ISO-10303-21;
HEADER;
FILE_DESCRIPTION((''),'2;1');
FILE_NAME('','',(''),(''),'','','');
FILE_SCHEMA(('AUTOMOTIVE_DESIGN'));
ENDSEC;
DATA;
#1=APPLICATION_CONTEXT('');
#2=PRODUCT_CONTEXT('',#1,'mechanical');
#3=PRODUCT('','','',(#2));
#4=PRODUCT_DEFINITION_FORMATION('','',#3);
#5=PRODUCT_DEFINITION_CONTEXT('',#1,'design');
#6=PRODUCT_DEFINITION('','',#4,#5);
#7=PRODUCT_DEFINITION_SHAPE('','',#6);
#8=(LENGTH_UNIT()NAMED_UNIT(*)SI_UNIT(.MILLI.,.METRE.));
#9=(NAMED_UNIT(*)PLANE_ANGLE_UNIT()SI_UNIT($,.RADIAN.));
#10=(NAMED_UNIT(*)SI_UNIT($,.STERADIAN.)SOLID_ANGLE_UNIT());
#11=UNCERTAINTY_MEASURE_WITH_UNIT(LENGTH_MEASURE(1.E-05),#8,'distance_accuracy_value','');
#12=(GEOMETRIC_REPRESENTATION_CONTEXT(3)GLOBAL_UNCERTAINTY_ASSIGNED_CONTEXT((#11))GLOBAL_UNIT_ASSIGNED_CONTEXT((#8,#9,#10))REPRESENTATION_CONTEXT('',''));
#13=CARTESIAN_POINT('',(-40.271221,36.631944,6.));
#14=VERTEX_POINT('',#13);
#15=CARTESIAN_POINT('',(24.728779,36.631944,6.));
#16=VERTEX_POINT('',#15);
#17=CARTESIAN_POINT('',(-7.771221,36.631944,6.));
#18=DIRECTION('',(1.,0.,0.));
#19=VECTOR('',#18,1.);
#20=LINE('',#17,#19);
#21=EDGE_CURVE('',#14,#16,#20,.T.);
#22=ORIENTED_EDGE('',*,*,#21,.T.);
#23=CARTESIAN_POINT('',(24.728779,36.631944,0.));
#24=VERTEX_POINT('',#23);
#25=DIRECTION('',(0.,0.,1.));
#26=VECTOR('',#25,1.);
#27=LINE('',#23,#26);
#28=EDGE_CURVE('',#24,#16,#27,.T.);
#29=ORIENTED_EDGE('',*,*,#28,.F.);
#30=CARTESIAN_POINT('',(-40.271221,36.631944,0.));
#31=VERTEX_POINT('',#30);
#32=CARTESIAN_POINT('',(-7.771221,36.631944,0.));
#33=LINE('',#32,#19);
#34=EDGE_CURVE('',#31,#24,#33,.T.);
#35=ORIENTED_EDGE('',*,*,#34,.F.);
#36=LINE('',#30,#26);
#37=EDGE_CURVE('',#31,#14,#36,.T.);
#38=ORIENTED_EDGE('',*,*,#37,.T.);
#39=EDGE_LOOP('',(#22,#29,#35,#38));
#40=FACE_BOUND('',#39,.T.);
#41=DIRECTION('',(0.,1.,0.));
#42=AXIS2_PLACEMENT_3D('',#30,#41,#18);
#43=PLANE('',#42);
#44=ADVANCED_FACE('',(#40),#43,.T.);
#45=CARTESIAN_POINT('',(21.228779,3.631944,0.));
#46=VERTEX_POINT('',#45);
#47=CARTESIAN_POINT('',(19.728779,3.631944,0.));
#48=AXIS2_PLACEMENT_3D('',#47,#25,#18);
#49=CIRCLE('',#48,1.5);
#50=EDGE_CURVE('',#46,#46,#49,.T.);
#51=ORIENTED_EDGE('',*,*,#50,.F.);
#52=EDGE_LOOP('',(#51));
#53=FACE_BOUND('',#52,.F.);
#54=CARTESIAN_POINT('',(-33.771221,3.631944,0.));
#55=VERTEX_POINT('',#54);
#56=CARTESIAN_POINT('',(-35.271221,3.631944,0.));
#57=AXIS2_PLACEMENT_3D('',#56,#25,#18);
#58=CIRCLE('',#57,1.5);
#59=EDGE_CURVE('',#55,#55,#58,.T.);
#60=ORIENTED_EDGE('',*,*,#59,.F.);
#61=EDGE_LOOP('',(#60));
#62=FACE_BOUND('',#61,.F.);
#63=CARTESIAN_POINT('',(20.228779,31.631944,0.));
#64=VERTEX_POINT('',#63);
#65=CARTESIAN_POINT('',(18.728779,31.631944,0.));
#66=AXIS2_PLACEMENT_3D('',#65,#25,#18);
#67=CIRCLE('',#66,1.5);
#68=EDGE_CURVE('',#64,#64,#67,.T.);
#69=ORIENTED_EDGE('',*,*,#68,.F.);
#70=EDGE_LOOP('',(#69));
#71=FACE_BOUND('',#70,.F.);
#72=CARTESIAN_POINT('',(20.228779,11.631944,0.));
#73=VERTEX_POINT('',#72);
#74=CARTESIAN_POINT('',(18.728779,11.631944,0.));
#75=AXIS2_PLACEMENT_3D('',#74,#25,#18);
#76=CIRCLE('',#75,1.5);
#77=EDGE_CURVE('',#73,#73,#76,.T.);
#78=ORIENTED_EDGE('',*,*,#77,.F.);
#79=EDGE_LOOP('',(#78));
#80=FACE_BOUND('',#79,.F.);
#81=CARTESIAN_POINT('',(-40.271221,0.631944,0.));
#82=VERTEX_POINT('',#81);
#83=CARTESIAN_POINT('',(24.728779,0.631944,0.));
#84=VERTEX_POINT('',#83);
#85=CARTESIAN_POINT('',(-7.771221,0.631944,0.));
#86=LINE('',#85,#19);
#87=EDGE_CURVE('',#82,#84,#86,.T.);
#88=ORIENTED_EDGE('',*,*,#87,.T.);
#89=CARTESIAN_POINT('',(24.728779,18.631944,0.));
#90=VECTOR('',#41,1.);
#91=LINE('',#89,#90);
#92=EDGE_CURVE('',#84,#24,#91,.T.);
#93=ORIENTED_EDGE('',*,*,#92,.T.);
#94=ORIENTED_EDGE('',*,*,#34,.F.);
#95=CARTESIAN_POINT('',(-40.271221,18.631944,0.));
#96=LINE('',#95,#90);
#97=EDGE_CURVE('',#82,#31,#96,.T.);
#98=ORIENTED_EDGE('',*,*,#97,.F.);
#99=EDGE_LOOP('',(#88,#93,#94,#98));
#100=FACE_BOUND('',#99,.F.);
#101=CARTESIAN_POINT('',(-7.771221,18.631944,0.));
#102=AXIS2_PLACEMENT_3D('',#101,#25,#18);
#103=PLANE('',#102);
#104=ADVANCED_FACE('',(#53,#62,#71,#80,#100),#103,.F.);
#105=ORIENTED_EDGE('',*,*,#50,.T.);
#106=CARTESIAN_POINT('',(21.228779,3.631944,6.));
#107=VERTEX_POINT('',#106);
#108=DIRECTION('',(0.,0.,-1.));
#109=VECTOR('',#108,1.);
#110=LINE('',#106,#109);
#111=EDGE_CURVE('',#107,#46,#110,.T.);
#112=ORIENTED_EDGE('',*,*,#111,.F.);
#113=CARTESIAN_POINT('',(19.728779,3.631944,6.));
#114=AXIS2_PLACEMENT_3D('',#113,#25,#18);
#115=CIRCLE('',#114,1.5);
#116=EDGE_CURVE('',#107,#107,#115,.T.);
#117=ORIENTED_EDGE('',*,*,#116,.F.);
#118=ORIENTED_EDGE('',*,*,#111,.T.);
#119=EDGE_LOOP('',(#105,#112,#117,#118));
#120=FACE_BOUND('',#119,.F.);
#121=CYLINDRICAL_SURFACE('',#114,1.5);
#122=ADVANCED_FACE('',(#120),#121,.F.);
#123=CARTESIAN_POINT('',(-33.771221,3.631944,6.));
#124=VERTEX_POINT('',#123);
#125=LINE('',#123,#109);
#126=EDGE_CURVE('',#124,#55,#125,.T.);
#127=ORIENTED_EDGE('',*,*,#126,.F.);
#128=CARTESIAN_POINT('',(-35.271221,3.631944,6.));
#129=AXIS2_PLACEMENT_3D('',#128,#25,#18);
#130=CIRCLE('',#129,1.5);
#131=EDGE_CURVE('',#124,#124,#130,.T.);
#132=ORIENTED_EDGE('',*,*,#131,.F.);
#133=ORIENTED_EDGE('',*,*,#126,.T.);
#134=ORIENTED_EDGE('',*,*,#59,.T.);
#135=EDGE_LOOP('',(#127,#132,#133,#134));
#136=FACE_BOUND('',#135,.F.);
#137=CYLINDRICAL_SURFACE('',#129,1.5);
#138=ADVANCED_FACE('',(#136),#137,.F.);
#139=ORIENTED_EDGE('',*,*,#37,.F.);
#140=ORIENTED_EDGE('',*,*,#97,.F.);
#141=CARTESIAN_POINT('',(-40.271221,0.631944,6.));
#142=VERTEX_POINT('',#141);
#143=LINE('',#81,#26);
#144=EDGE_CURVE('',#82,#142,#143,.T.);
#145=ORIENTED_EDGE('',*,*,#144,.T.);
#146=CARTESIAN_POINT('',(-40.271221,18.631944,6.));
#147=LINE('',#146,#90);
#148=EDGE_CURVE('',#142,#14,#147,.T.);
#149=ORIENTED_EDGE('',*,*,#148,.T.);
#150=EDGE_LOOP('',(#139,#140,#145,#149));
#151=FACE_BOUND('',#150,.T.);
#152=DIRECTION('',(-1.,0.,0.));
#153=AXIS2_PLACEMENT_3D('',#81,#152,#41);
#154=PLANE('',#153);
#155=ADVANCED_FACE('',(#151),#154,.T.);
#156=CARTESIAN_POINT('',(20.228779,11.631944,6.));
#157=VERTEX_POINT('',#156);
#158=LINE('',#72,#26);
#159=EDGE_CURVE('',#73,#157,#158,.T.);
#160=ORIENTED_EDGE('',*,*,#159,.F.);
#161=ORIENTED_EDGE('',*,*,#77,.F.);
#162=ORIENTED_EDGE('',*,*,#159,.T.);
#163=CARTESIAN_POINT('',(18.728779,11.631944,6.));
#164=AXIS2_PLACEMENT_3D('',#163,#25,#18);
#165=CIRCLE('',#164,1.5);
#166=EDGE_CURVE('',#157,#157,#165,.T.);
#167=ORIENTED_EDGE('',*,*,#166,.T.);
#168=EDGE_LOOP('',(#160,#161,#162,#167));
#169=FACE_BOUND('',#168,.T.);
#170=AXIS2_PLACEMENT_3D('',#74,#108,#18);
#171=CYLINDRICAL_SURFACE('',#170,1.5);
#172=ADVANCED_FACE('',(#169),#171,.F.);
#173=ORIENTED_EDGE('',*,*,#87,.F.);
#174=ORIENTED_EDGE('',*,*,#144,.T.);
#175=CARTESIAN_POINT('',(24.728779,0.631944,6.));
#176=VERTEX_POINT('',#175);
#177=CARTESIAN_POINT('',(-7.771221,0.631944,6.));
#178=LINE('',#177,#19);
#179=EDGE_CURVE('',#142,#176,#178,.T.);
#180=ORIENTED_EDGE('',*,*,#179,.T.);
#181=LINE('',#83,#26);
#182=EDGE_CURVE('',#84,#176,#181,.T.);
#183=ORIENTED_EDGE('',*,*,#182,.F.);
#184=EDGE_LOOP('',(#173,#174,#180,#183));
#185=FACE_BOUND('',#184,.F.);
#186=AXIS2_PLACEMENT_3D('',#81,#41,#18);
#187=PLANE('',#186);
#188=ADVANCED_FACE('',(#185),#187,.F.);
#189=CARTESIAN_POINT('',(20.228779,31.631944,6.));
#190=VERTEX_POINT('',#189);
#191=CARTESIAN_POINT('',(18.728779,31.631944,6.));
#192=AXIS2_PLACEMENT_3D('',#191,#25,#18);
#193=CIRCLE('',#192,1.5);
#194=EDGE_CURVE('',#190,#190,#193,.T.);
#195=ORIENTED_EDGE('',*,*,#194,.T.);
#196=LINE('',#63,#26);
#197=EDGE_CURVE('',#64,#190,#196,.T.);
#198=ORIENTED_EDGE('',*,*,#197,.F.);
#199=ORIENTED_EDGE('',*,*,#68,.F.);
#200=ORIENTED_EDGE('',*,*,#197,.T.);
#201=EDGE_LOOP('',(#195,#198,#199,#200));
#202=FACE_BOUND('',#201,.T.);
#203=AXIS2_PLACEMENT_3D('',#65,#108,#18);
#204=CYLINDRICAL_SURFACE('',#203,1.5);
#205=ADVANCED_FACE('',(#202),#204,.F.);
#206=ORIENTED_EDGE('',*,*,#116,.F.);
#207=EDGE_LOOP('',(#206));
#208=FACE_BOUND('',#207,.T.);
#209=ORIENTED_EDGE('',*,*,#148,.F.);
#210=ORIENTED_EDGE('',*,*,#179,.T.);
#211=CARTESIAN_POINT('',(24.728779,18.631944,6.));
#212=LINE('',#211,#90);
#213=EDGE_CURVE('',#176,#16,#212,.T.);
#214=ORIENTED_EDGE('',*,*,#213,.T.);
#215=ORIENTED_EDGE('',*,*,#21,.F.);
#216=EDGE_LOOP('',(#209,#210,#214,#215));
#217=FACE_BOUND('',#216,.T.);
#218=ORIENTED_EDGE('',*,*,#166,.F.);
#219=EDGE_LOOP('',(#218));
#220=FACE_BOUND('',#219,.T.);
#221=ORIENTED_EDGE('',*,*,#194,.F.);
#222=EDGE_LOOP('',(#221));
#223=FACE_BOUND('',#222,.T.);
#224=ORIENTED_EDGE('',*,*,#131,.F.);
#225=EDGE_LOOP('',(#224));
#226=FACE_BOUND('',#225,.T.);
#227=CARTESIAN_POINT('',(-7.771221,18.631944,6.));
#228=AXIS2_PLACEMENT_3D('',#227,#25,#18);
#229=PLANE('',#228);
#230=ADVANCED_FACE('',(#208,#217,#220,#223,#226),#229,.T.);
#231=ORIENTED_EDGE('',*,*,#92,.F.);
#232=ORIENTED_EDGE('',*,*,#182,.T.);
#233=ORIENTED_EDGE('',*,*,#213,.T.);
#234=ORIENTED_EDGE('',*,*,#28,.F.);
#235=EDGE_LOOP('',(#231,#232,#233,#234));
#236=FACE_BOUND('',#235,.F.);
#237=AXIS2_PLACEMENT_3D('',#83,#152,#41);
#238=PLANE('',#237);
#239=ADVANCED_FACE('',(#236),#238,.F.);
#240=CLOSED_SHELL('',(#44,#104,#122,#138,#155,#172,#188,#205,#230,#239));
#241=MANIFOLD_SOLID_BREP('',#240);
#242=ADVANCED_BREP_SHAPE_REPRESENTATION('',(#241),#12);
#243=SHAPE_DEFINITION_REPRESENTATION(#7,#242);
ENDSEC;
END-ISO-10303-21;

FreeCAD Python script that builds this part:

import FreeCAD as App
import Part
import Sketcher

V = App.Vector
Q = App.Units.Quantity


def add_polygon(sketch, points):
    """Adds a closed chain of lines whose ends are joined by coincident constraints."""
    first, n = sketch.GeometryCount, len(points)
    for a, b in zip(points, points[1:] + points[:1]):
        sketch.addGeometry(Part.LineSegment(App.Vector(*a, 0), App.Vector(*b, 0)), False)
    for i in range(n):
        sketch.addConstraint(Sketcher.Constraint("Coincident", first + i, 2, first + (i + 1) % n, 1))

doc = App.newDocument("Part")
body = doc.addObject("PartDesign::Body", "Body")

sketch1 = doc.addObject("Sketcher::SketchObject", "Sketch")
body.addObject(sketch1)
sketch1.AttachmentSupport = (doc.XY_Plane, [""])
sketch1.MapMode = "FlatFace"
add_polygon(sketch1, [(-40.271221, 36.631944), (-40.271221, 0.631944), (24.728779, 0.631944), (24.728779, 36.631944)])
sketch1.addGeometry(Part.Circle(V(18.728779, 11.631944, 0), V(0, 0, 1), 1.5), False)
sketch1.addGeometry(Part.Circle(V(18.728779, 31.631944, 0), V(0, 0, 1), 1.5), False)
sketch1.addConstraint(Sketcher.Constraint("Vertical", 0))
sketch1.addConstraint(Sketcher.Constraint("Horizontal", 1))
sketch1.addConstraint(Sketcher.Constraint("Vertical", 2))
sketch1.addConstraint(Sketcher.Constraint("Horizontal", 3))
sketch1.addConstraint(Sketcher.Constraint("Equal", 4, 5))
sketch1.addConstraint(Sketcher.Constraint("Vertical", 4, 3, 5, 3))
sketch1.addConstraint(Sketcher.Constraint("Diameter", 4, Q("3 mm")))
sketch1.addConstraint(Sketcher.Constraint("DistanceX", 1, 1, 1, 2, Q("65 mm")))
sketch1.addConstraint(Sketcher.Constraint("DistanceY", 0, 2, 0, 1, Q("36 mm")))
sketch1.addConstraint(Sketcher.Constraint("DistanceY", 4, 3, 5, 3, Q("20 mm")))
sketch1.addConstraint(Sketcher.Constraint("DistanceX", 0, 2, 4, 3, Q("59 mm")))
sketch1.addConstraint(Sketcher.Constraint("DistanceY", 0, 2, 4, 3, Q("11 mm")))
sketch1.addConstraint(Sketcher.Constraint("DistanceX", -1, 1, 4, 3, Q("18.728779 mm")))
sketch1.addConstraint(Sketcher.Constraint("DistanceY", -1, 1, 4, 3, Q("11.631944 mm")))
pad1 = doc.addObject("PartDesign::Pad", "Pad")
body.addObject(pad1)
pad1.Profile = sketch1
pad1.Length = 6

sketch2 = doc.addObject("Sketcher::SketchObject", "Sketch001")
body.addObject(sketch2)
sketch2.AttachmentSupport = (doc.XY_Plane, [""])
sketch2.MapMode = "FlatFace"
sketch2.AttachmentOffset = App.Placement(V(0, 0, 6), App.Rotation())
sketch2.addGeometry(Part.Circle(V(-35.271221, 3.631944, 0), V(0, 0, 1), 1.5), False)
sketch2.addGeometry(Part.Circle(V(19.728779, 3.631944, 0), V(0, 0, 1), 1.5), False)
sketch2.addConstraint(Sketcher.Constraint("Equal", 0, 1))
sketch2.addConstraint(Sketcher.Constraint("Horizontal", 0, 3, 1, 3))
sketch2.addConstraint(Sketcher.Constraint("Diameter", 0, Q("3 mm")))
sketch2.addConstraint(Sketcher.Constraint("DistanceX", 0, 3, 1, 3, Q("55 mm")))
sketch2.addConstraint(Sketcher.Constraint("DistanceX", 0, 3, -1, 1, Q("35.271221 mm")))
sketch2.addConstraint(Sketcher.Constraint("DistanceY", -1, 1, 0, 3, Q("3.631944 mm")))
pocket1 = doc.addObject("PartDesign::Pocket", "Pocket")
body.addObject(pocket1)
pocket1.Profile = sketch2
pocket1.Length = 10

doc.recompute()
